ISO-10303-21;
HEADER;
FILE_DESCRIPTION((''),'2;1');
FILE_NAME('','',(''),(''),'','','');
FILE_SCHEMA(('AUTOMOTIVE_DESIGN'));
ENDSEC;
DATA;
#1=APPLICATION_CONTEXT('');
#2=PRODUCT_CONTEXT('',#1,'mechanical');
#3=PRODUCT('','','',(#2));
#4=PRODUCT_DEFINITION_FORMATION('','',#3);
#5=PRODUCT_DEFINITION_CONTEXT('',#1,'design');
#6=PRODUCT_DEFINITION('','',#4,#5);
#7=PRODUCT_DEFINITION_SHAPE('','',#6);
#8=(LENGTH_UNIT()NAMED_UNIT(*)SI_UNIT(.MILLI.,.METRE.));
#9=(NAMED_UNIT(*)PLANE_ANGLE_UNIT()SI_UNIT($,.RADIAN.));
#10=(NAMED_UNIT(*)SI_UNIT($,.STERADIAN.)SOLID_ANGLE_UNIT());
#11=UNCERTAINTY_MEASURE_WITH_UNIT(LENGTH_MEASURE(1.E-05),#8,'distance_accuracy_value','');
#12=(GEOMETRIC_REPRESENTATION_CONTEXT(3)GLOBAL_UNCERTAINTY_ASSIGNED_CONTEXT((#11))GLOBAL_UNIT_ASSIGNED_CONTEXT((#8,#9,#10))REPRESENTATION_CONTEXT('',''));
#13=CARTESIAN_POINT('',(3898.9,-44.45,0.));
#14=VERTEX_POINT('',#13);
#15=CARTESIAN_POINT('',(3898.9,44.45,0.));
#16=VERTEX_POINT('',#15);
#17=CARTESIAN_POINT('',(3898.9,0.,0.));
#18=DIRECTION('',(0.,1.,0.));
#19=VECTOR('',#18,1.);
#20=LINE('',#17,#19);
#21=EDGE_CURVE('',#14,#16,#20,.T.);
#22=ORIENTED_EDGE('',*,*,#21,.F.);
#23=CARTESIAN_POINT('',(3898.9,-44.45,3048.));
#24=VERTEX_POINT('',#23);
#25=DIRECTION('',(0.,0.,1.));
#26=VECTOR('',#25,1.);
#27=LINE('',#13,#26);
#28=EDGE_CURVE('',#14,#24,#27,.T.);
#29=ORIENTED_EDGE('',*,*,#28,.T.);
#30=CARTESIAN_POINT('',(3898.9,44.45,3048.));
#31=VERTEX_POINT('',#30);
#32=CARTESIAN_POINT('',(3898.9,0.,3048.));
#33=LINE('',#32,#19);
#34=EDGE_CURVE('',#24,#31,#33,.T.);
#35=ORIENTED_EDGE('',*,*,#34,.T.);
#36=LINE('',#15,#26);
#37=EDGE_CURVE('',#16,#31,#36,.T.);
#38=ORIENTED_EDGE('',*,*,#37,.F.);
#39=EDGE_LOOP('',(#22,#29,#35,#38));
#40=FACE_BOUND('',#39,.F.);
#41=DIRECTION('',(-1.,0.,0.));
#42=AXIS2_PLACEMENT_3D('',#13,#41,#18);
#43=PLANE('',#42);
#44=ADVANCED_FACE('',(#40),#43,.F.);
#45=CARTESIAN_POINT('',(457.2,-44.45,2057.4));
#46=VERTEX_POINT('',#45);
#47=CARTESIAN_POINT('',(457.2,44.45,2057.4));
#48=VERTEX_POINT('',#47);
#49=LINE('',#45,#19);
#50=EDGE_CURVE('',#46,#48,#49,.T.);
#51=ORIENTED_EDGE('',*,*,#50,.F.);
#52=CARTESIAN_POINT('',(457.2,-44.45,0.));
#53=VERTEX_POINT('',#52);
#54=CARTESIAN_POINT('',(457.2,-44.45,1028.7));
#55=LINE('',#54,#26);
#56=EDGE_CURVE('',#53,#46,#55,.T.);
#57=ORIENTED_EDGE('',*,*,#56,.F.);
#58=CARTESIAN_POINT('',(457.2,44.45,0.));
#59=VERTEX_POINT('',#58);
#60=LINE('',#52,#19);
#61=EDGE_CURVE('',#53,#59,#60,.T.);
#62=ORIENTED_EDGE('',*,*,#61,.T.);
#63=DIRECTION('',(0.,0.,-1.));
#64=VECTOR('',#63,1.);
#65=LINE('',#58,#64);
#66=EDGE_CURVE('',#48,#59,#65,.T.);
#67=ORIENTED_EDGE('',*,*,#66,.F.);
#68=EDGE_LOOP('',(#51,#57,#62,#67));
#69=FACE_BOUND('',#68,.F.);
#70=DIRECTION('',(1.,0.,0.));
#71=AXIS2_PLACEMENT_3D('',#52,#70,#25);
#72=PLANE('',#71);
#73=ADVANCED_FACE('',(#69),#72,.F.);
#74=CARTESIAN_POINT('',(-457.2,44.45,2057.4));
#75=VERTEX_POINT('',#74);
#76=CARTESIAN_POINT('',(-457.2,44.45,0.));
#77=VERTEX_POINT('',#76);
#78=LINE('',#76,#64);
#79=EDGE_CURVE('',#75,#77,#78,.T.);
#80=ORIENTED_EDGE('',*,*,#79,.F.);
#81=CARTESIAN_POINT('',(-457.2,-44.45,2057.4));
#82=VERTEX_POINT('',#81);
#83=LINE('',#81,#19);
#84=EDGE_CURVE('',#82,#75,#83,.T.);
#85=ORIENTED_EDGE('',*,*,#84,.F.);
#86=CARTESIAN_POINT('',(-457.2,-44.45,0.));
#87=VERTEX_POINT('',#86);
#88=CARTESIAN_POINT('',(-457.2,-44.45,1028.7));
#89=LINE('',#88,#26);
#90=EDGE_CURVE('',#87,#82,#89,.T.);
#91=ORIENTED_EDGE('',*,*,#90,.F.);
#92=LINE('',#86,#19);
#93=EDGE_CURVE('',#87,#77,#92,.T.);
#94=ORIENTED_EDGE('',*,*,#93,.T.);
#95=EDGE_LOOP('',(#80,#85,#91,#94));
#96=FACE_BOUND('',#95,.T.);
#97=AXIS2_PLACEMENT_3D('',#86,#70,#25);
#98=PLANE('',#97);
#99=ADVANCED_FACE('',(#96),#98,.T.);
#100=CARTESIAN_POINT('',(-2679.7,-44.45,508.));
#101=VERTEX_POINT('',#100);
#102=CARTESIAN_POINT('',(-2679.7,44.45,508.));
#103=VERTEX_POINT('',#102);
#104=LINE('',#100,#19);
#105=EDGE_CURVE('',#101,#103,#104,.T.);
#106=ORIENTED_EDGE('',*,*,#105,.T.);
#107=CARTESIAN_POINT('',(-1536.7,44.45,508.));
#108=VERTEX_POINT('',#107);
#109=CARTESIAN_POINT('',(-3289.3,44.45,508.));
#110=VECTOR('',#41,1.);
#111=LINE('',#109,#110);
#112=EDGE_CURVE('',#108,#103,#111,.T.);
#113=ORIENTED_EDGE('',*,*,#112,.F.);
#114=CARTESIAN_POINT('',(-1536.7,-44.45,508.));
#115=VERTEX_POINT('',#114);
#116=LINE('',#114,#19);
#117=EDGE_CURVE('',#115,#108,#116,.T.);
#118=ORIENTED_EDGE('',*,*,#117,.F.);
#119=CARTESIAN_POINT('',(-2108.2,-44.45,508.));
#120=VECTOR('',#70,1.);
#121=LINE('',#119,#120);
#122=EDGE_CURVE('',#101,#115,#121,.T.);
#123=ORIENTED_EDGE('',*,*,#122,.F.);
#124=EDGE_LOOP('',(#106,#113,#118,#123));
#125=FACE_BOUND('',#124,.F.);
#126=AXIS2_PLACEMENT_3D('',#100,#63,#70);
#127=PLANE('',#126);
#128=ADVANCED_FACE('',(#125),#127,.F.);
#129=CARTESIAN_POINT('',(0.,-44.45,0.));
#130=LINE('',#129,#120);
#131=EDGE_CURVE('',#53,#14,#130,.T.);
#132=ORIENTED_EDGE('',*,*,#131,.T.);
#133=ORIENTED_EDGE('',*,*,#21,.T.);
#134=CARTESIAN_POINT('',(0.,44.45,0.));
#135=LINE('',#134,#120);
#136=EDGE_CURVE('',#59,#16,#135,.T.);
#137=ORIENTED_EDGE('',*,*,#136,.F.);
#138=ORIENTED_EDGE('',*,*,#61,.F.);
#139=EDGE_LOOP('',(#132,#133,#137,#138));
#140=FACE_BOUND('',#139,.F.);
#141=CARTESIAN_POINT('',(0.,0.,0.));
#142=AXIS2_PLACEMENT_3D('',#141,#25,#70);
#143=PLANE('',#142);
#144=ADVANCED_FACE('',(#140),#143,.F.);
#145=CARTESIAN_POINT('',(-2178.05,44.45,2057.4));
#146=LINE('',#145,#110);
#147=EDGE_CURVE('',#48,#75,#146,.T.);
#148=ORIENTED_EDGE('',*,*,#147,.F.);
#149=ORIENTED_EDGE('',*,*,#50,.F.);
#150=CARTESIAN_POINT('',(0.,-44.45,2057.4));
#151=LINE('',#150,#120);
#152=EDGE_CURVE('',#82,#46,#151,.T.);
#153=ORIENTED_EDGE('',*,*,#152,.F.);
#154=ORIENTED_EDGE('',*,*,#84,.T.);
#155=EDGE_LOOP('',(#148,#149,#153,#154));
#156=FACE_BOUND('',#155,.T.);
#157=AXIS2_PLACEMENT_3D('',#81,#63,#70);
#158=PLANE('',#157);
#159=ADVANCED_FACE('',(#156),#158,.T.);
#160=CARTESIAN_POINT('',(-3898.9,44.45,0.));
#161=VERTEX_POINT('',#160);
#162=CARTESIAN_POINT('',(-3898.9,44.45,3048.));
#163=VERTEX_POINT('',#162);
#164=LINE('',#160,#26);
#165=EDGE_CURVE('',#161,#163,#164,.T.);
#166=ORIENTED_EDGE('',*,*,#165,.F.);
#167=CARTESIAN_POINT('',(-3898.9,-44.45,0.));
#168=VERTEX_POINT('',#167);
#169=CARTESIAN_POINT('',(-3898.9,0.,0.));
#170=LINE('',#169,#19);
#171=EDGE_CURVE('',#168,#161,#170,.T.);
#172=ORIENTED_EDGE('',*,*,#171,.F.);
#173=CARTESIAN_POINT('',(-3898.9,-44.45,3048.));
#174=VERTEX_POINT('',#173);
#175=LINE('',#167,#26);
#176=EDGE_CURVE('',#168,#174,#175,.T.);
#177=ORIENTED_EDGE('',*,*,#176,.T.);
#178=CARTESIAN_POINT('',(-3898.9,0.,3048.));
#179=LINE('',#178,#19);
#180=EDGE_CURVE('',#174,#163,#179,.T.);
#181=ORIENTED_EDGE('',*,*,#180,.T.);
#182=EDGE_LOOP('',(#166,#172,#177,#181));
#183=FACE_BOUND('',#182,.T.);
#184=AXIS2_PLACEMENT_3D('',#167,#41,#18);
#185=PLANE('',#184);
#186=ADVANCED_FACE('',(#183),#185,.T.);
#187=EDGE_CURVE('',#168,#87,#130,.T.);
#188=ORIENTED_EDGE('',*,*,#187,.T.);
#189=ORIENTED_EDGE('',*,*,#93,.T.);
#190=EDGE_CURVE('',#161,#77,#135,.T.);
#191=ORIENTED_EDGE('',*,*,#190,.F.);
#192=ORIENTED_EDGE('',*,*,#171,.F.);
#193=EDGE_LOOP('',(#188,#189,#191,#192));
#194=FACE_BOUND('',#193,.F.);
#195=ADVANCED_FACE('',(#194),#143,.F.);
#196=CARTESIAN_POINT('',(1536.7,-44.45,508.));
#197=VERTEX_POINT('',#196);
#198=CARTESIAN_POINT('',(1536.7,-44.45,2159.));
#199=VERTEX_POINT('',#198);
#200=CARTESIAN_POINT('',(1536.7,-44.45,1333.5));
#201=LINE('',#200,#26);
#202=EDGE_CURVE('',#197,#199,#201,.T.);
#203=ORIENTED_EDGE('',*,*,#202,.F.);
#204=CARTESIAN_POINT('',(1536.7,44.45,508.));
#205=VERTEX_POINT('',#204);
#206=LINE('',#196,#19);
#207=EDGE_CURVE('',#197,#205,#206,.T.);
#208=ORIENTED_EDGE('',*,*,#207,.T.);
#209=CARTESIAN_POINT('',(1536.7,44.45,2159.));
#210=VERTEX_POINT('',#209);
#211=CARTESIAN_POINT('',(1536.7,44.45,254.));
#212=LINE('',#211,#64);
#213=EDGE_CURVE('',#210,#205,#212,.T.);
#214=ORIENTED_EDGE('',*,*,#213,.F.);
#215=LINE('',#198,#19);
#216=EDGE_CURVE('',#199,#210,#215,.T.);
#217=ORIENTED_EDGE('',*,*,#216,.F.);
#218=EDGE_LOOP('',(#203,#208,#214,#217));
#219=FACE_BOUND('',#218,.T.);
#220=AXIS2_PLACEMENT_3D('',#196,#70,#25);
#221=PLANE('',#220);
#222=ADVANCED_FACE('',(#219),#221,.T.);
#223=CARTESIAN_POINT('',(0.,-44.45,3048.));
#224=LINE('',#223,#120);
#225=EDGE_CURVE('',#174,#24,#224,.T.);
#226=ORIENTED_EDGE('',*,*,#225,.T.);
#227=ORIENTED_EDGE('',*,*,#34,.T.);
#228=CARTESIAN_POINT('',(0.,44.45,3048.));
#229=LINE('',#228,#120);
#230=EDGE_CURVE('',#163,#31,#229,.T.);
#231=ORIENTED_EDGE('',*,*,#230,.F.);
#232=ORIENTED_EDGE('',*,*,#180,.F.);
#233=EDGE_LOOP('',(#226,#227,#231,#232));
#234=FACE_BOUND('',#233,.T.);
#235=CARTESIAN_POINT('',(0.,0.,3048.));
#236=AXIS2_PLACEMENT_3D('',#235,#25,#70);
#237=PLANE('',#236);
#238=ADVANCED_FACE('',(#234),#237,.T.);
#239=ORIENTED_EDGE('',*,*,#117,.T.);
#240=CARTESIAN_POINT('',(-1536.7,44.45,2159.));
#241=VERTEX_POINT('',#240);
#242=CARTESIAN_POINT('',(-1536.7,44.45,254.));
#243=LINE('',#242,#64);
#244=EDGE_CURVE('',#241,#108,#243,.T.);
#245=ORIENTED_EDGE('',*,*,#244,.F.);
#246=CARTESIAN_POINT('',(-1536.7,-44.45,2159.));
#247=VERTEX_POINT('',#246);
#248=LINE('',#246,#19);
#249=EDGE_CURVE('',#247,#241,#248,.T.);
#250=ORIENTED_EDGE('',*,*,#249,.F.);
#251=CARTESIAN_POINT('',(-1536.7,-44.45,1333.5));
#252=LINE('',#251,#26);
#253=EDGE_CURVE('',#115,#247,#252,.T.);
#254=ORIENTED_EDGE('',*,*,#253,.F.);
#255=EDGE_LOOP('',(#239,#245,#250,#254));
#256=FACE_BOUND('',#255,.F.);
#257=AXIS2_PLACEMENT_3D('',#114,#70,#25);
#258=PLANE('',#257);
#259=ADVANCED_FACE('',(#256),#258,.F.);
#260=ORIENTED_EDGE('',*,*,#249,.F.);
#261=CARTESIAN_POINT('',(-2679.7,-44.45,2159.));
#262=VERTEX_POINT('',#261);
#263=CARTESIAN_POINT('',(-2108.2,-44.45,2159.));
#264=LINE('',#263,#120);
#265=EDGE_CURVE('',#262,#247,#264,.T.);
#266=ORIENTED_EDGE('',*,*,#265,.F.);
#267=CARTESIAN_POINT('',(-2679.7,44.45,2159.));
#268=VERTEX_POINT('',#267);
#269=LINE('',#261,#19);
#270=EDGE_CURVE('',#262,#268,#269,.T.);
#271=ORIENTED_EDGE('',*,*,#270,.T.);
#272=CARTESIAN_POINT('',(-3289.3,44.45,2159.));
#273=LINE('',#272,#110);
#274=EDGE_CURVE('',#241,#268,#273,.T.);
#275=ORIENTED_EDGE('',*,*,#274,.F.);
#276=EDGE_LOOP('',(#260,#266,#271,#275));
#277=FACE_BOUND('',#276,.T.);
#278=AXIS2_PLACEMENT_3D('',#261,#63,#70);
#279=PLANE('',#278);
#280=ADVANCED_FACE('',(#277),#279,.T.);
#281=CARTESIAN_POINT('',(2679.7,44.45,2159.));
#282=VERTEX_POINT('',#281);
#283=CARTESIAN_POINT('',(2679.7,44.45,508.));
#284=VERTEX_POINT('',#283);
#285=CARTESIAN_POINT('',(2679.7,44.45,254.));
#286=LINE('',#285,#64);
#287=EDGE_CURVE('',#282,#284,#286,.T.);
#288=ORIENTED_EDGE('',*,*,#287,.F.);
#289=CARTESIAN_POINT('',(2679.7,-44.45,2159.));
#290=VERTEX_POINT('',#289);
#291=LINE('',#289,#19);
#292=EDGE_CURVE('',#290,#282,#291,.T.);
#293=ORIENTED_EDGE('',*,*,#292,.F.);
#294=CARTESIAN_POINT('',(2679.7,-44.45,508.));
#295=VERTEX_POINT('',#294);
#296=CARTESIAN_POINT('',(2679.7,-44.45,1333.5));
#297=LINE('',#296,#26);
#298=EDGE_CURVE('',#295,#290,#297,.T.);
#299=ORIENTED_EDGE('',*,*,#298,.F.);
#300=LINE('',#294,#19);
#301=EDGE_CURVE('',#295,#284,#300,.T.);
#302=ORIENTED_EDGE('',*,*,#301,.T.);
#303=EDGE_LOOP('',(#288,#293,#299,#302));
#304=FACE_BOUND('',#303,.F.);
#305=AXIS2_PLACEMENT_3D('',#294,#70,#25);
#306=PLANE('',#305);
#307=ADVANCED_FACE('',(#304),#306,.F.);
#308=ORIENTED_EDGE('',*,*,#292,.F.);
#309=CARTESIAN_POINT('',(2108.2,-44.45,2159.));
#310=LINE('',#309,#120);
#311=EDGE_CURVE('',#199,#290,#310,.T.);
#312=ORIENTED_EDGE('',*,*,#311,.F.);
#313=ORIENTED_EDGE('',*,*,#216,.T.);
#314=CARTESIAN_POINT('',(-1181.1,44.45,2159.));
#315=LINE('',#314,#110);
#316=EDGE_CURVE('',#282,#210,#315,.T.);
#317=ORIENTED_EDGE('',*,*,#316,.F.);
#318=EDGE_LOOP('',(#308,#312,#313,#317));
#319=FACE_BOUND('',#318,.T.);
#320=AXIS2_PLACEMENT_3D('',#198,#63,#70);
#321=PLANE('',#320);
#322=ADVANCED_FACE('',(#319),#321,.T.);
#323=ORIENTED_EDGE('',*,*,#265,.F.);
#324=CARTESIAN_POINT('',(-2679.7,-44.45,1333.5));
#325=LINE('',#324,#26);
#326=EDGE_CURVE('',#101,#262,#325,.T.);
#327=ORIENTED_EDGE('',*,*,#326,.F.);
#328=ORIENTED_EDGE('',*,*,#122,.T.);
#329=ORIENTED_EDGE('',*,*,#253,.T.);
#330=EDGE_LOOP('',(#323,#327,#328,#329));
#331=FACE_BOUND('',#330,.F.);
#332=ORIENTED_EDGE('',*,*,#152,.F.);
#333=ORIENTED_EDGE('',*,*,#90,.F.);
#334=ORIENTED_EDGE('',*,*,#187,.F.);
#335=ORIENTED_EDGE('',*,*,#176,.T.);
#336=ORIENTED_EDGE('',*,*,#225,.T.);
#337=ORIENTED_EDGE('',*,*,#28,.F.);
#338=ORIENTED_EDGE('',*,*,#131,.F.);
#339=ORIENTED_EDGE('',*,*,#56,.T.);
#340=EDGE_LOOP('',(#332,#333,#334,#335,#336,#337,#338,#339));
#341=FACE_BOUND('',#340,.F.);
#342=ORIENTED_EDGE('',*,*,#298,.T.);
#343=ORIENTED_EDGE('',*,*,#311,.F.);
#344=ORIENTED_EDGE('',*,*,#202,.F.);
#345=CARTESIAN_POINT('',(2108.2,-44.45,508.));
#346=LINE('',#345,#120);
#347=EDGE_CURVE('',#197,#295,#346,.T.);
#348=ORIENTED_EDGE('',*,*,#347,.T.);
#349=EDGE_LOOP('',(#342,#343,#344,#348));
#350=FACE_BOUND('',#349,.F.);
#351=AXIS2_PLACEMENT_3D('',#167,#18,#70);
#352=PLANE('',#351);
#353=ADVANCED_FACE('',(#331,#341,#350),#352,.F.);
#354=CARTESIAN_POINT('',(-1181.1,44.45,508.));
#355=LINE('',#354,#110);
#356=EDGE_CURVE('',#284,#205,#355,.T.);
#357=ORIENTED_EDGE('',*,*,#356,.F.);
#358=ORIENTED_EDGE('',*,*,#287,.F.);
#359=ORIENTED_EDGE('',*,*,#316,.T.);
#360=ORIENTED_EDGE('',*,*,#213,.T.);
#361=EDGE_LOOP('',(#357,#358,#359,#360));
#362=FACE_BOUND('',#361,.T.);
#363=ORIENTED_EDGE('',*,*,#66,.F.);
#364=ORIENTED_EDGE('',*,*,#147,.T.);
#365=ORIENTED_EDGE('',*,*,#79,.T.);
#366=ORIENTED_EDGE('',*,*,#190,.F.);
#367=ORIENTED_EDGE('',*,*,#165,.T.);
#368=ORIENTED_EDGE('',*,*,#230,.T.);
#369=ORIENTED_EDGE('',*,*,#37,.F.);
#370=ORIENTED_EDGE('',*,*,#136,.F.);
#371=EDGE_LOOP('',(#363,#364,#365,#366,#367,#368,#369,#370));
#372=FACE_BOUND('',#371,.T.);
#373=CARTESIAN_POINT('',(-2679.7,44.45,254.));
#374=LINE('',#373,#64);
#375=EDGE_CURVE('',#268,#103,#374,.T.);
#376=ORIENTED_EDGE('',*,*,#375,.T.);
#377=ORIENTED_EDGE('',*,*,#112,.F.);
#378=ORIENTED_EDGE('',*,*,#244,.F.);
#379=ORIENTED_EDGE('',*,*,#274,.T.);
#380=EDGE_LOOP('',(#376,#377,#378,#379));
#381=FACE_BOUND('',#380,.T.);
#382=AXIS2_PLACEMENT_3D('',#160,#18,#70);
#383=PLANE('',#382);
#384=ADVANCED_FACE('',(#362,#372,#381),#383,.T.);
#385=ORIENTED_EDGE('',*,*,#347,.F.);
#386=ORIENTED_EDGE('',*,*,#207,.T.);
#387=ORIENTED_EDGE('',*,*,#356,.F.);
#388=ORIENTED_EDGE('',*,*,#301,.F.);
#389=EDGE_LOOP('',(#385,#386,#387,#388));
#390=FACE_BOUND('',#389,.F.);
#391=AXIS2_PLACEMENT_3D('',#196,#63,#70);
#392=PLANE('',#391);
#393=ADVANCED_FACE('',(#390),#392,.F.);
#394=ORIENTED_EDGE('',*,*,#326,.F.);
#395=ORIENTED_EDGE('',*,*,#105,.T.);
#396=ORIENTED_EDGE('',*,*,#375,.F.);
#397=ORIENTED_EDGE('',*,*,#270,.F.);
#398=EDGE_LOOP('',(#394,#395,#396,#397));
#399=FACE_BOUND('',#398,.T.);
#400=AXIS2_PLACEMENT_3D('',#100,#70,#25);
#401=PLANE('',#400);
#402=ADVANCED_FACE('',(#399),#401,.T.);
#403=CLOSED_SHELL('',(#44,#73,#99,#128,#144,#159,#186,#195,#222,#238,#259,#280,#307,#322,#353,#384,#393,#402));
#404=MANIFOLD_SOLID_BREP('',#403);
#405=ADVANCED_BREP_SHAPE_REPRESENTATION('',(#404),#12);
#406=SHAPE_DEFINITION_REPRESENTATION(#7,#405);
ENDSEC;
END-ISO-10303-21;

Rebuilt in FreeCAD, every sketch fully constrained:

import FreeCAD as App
import Part
import Sketcher
from FreeCAD import Vector
Q = App.Units.Quantity

doc = App.newDocument("Part")
body = doc.addObject("PartDesign::Body", "Body")

# Sketch on XY plane
sketch1 = body.newObject("Sketcher::SketchObject", "Sketch")
sketch1.AttachmentSupport = (doc.getObject("XY_Plane"), [""])
sketch1.MapMode = "FlatFace"
sketch1.addGeometry([
    Part.LineSegment(Vector(-3898.9, 44.45, 0), Vector(-3898.9, -44.45, 0)),
    Part.LineSegment(Vector(-3898.9, -44.45, 0), Vector(3898.9, -44.45, 0)),
    Part.LineSegment(Vector(3898.9, -44.45, 0), Vector(3898.9, 44.45, 0)),
    Part.LineSegment(Vector(3898.9, 44.45, 0), Vector(-3898.9, 44.45, 0)),
], False)
sketch1.addConstraint([
    Sketcher.Constraint("Coincident", 0, 2, 1, 1),
    Sketcher.Constraint("Coincident", 1, 2, 2, 1),
    Sketcher.Constraint("Coincident", 2, 2, 3, 1),
    Sketcher.Constraint("Coincident", 3, 2, 0, 1),
    Sketcher.Constraint("Vertical", 0),
    Sketcher.Constraint("Horizontal", 1),
    Sketcher.Constraint("Vertical", 2),
    Sketcher.Constraint("Horizontal", 3),
    Sketcher.Constraint("Symmetric", 0, 2, 2, 2, -1, 1),
    Sketcher.Constraint("DistanceX", 1, 1, 1, 2, Q("307 in")),
    Sketcher.Constraint("DistanceY", 0, 2, 0, 1, Q("3.5 in")),
])
pad1 = body.newObject("PartDesign::Pad", "Pad")
pad1.Profile = sketch1
pad1.Length = Q("120 in")

# Sketch on XZ plane
sketch2 = body.newObject("Sketcher::SketchObject", "Sketch001")
sketch2.AttachmentSupport = (doc.getObject("XZ_Plane"), [""])
sketch2.MapMode = "FlatFace"
sketch2.AttachmentOffset = App.Placement(Vector(0, 0, 1.75 * 25.4), App.Rotation())
sketch2.addGeometry([
    Part.LineSegment(Vector(-2679.7, 2159, 0), Vector(-2679.7, 508, 0)),  # 0
    Part.LineSegment(Vector(-2679.7, 508, 0), Vector(-1536.7, 508, 0)),  # 1
    Part.LineSegment(Vector(-1536.7, 508, 0), Vector(-1536.7, 2159, 0)),  # 2
    Part.LineSegment(Vector(-1536.7, 2159, 0), Vector(-2679.7, 2159, 0)),  # 3
    Part.LineSegment(Vector(1536.7, 2159, 0), Vector(1536.7, 508, 0)),  # 4
    Part.LineSegment(Vector(1536.7, 508, 0), Vector(2679.7, 508, 0)),  # 5
    Part.LineSegment(Vector(2679.7, 508, 0), Vector(2679.7, 2159, 0)),  # 6
    Part.LineSegment(Vector(2679.7, 2159, 0), Vector(1536.7, 2159, 0)),  # 7
    Part.LineSegment(Vector(-457.2, 2057.4, 0), Vector(-457.2, 0, 0)),  # 8
    Part.LineSegment(Vector(-457.2, 0, 0), Vector(457.2, 0, 0)),  # 9
    Part.LineSegment(Vector(457.2, 0, 0), Vector(457.2, 2057.4, 0)),  # 10
    Part.LineSegment(Vector(457.2, 2057.4, 0), Vector(-457.2, 2057.4, 0)),  # 11
], False)
sketch2.addConstraint([
    Sketcher.Constraint("Coincident", 0, 2, 1, 1),
    Sketcher.Constraint("Coincident", 1, 2, 2, 1),
    Sketcher.Constraint("Coincident", 2, 2, 3, 1),
    Sketcher.Constraint("Coincident", 3, 2, 0, 1),
    Sketcher.Constraint("Coincident", 4, 2, 5, 1),
    Sketcher.Constraint("Coincident", 5, 2, 6, 1),
    Sketcher.Constraint("Coincident", 6, 2, 7, 1),
    Sketcher.Constraint("Coincident", 7, 2, 4, 1),
    Sketcher.Constraint("Coincident", 8, 2, 9, 1),
    Sketcher.Constraint("Coincident", 9, 2, 10, 1),
    Sketcher.Constraint("Coincident", 10, 2, 11, 1),
    Sketcher.Constraint("Coincident", 11, 2, 8, 1),
    Sketcher.Constraint("Vertical", 0),
    Sketcher.Constraint("Horizontal", 1),
    Sketcher.Constraint("Vertical", 2),
    Sketcher.Constraint("Horizontal", 3),
    Sketcher.Constraint("Vertical", 4),
    Sketcher.Constraint("Horizontal", 5),
    Sketcher.Constraint("Vertical", 6),
    Sketcher.Constraint("Horizontal", 7),
    Sketcher.Constraint("Vertical", 8),
    Sketcher.Constraint("Horizontal", 9),
    Sketcher.Constraint("Vertical", 10),
    Sketcher.Constraint("Horizontal", 11),
    Sketcher.Constraint("Symmetric", 8, 2, 9, 2, -1, 1),
    Sketcher.Constraint("Symmetric", 1, 2, 4, 2, -2),
    Sketcher.Constraint("Symmetric", 3, 2, 6, 2, -2),
    Sketcher.Constraint("DistanceX", 1, 1, 1, 2, Q("45 in")),
    Sketcher.Constraint("DistanceX", 9, 1, 9, 2, Q("36 in")),
    Sketcher.Constraint("DistanceY", 0, 2, 0, 1, Q("65 in")),
    Sketcher.Constraint("DistanceY", 8, 2, 8, 1, Q("81 in")),
    Sketcher.Constraint("DistanceY", -1, 1, 0, 2, Q("20 in")),
    Sketcher.Constraint("DistanceX", 1, 2, 4, 2, Q("121 in")),
])
pocket1 = body.newObject("PartDesign::Pocket", "Pocket")
pocket1.Profile = sketch2
pocket1.Type = "ThroughAll"

doc.recompute()
